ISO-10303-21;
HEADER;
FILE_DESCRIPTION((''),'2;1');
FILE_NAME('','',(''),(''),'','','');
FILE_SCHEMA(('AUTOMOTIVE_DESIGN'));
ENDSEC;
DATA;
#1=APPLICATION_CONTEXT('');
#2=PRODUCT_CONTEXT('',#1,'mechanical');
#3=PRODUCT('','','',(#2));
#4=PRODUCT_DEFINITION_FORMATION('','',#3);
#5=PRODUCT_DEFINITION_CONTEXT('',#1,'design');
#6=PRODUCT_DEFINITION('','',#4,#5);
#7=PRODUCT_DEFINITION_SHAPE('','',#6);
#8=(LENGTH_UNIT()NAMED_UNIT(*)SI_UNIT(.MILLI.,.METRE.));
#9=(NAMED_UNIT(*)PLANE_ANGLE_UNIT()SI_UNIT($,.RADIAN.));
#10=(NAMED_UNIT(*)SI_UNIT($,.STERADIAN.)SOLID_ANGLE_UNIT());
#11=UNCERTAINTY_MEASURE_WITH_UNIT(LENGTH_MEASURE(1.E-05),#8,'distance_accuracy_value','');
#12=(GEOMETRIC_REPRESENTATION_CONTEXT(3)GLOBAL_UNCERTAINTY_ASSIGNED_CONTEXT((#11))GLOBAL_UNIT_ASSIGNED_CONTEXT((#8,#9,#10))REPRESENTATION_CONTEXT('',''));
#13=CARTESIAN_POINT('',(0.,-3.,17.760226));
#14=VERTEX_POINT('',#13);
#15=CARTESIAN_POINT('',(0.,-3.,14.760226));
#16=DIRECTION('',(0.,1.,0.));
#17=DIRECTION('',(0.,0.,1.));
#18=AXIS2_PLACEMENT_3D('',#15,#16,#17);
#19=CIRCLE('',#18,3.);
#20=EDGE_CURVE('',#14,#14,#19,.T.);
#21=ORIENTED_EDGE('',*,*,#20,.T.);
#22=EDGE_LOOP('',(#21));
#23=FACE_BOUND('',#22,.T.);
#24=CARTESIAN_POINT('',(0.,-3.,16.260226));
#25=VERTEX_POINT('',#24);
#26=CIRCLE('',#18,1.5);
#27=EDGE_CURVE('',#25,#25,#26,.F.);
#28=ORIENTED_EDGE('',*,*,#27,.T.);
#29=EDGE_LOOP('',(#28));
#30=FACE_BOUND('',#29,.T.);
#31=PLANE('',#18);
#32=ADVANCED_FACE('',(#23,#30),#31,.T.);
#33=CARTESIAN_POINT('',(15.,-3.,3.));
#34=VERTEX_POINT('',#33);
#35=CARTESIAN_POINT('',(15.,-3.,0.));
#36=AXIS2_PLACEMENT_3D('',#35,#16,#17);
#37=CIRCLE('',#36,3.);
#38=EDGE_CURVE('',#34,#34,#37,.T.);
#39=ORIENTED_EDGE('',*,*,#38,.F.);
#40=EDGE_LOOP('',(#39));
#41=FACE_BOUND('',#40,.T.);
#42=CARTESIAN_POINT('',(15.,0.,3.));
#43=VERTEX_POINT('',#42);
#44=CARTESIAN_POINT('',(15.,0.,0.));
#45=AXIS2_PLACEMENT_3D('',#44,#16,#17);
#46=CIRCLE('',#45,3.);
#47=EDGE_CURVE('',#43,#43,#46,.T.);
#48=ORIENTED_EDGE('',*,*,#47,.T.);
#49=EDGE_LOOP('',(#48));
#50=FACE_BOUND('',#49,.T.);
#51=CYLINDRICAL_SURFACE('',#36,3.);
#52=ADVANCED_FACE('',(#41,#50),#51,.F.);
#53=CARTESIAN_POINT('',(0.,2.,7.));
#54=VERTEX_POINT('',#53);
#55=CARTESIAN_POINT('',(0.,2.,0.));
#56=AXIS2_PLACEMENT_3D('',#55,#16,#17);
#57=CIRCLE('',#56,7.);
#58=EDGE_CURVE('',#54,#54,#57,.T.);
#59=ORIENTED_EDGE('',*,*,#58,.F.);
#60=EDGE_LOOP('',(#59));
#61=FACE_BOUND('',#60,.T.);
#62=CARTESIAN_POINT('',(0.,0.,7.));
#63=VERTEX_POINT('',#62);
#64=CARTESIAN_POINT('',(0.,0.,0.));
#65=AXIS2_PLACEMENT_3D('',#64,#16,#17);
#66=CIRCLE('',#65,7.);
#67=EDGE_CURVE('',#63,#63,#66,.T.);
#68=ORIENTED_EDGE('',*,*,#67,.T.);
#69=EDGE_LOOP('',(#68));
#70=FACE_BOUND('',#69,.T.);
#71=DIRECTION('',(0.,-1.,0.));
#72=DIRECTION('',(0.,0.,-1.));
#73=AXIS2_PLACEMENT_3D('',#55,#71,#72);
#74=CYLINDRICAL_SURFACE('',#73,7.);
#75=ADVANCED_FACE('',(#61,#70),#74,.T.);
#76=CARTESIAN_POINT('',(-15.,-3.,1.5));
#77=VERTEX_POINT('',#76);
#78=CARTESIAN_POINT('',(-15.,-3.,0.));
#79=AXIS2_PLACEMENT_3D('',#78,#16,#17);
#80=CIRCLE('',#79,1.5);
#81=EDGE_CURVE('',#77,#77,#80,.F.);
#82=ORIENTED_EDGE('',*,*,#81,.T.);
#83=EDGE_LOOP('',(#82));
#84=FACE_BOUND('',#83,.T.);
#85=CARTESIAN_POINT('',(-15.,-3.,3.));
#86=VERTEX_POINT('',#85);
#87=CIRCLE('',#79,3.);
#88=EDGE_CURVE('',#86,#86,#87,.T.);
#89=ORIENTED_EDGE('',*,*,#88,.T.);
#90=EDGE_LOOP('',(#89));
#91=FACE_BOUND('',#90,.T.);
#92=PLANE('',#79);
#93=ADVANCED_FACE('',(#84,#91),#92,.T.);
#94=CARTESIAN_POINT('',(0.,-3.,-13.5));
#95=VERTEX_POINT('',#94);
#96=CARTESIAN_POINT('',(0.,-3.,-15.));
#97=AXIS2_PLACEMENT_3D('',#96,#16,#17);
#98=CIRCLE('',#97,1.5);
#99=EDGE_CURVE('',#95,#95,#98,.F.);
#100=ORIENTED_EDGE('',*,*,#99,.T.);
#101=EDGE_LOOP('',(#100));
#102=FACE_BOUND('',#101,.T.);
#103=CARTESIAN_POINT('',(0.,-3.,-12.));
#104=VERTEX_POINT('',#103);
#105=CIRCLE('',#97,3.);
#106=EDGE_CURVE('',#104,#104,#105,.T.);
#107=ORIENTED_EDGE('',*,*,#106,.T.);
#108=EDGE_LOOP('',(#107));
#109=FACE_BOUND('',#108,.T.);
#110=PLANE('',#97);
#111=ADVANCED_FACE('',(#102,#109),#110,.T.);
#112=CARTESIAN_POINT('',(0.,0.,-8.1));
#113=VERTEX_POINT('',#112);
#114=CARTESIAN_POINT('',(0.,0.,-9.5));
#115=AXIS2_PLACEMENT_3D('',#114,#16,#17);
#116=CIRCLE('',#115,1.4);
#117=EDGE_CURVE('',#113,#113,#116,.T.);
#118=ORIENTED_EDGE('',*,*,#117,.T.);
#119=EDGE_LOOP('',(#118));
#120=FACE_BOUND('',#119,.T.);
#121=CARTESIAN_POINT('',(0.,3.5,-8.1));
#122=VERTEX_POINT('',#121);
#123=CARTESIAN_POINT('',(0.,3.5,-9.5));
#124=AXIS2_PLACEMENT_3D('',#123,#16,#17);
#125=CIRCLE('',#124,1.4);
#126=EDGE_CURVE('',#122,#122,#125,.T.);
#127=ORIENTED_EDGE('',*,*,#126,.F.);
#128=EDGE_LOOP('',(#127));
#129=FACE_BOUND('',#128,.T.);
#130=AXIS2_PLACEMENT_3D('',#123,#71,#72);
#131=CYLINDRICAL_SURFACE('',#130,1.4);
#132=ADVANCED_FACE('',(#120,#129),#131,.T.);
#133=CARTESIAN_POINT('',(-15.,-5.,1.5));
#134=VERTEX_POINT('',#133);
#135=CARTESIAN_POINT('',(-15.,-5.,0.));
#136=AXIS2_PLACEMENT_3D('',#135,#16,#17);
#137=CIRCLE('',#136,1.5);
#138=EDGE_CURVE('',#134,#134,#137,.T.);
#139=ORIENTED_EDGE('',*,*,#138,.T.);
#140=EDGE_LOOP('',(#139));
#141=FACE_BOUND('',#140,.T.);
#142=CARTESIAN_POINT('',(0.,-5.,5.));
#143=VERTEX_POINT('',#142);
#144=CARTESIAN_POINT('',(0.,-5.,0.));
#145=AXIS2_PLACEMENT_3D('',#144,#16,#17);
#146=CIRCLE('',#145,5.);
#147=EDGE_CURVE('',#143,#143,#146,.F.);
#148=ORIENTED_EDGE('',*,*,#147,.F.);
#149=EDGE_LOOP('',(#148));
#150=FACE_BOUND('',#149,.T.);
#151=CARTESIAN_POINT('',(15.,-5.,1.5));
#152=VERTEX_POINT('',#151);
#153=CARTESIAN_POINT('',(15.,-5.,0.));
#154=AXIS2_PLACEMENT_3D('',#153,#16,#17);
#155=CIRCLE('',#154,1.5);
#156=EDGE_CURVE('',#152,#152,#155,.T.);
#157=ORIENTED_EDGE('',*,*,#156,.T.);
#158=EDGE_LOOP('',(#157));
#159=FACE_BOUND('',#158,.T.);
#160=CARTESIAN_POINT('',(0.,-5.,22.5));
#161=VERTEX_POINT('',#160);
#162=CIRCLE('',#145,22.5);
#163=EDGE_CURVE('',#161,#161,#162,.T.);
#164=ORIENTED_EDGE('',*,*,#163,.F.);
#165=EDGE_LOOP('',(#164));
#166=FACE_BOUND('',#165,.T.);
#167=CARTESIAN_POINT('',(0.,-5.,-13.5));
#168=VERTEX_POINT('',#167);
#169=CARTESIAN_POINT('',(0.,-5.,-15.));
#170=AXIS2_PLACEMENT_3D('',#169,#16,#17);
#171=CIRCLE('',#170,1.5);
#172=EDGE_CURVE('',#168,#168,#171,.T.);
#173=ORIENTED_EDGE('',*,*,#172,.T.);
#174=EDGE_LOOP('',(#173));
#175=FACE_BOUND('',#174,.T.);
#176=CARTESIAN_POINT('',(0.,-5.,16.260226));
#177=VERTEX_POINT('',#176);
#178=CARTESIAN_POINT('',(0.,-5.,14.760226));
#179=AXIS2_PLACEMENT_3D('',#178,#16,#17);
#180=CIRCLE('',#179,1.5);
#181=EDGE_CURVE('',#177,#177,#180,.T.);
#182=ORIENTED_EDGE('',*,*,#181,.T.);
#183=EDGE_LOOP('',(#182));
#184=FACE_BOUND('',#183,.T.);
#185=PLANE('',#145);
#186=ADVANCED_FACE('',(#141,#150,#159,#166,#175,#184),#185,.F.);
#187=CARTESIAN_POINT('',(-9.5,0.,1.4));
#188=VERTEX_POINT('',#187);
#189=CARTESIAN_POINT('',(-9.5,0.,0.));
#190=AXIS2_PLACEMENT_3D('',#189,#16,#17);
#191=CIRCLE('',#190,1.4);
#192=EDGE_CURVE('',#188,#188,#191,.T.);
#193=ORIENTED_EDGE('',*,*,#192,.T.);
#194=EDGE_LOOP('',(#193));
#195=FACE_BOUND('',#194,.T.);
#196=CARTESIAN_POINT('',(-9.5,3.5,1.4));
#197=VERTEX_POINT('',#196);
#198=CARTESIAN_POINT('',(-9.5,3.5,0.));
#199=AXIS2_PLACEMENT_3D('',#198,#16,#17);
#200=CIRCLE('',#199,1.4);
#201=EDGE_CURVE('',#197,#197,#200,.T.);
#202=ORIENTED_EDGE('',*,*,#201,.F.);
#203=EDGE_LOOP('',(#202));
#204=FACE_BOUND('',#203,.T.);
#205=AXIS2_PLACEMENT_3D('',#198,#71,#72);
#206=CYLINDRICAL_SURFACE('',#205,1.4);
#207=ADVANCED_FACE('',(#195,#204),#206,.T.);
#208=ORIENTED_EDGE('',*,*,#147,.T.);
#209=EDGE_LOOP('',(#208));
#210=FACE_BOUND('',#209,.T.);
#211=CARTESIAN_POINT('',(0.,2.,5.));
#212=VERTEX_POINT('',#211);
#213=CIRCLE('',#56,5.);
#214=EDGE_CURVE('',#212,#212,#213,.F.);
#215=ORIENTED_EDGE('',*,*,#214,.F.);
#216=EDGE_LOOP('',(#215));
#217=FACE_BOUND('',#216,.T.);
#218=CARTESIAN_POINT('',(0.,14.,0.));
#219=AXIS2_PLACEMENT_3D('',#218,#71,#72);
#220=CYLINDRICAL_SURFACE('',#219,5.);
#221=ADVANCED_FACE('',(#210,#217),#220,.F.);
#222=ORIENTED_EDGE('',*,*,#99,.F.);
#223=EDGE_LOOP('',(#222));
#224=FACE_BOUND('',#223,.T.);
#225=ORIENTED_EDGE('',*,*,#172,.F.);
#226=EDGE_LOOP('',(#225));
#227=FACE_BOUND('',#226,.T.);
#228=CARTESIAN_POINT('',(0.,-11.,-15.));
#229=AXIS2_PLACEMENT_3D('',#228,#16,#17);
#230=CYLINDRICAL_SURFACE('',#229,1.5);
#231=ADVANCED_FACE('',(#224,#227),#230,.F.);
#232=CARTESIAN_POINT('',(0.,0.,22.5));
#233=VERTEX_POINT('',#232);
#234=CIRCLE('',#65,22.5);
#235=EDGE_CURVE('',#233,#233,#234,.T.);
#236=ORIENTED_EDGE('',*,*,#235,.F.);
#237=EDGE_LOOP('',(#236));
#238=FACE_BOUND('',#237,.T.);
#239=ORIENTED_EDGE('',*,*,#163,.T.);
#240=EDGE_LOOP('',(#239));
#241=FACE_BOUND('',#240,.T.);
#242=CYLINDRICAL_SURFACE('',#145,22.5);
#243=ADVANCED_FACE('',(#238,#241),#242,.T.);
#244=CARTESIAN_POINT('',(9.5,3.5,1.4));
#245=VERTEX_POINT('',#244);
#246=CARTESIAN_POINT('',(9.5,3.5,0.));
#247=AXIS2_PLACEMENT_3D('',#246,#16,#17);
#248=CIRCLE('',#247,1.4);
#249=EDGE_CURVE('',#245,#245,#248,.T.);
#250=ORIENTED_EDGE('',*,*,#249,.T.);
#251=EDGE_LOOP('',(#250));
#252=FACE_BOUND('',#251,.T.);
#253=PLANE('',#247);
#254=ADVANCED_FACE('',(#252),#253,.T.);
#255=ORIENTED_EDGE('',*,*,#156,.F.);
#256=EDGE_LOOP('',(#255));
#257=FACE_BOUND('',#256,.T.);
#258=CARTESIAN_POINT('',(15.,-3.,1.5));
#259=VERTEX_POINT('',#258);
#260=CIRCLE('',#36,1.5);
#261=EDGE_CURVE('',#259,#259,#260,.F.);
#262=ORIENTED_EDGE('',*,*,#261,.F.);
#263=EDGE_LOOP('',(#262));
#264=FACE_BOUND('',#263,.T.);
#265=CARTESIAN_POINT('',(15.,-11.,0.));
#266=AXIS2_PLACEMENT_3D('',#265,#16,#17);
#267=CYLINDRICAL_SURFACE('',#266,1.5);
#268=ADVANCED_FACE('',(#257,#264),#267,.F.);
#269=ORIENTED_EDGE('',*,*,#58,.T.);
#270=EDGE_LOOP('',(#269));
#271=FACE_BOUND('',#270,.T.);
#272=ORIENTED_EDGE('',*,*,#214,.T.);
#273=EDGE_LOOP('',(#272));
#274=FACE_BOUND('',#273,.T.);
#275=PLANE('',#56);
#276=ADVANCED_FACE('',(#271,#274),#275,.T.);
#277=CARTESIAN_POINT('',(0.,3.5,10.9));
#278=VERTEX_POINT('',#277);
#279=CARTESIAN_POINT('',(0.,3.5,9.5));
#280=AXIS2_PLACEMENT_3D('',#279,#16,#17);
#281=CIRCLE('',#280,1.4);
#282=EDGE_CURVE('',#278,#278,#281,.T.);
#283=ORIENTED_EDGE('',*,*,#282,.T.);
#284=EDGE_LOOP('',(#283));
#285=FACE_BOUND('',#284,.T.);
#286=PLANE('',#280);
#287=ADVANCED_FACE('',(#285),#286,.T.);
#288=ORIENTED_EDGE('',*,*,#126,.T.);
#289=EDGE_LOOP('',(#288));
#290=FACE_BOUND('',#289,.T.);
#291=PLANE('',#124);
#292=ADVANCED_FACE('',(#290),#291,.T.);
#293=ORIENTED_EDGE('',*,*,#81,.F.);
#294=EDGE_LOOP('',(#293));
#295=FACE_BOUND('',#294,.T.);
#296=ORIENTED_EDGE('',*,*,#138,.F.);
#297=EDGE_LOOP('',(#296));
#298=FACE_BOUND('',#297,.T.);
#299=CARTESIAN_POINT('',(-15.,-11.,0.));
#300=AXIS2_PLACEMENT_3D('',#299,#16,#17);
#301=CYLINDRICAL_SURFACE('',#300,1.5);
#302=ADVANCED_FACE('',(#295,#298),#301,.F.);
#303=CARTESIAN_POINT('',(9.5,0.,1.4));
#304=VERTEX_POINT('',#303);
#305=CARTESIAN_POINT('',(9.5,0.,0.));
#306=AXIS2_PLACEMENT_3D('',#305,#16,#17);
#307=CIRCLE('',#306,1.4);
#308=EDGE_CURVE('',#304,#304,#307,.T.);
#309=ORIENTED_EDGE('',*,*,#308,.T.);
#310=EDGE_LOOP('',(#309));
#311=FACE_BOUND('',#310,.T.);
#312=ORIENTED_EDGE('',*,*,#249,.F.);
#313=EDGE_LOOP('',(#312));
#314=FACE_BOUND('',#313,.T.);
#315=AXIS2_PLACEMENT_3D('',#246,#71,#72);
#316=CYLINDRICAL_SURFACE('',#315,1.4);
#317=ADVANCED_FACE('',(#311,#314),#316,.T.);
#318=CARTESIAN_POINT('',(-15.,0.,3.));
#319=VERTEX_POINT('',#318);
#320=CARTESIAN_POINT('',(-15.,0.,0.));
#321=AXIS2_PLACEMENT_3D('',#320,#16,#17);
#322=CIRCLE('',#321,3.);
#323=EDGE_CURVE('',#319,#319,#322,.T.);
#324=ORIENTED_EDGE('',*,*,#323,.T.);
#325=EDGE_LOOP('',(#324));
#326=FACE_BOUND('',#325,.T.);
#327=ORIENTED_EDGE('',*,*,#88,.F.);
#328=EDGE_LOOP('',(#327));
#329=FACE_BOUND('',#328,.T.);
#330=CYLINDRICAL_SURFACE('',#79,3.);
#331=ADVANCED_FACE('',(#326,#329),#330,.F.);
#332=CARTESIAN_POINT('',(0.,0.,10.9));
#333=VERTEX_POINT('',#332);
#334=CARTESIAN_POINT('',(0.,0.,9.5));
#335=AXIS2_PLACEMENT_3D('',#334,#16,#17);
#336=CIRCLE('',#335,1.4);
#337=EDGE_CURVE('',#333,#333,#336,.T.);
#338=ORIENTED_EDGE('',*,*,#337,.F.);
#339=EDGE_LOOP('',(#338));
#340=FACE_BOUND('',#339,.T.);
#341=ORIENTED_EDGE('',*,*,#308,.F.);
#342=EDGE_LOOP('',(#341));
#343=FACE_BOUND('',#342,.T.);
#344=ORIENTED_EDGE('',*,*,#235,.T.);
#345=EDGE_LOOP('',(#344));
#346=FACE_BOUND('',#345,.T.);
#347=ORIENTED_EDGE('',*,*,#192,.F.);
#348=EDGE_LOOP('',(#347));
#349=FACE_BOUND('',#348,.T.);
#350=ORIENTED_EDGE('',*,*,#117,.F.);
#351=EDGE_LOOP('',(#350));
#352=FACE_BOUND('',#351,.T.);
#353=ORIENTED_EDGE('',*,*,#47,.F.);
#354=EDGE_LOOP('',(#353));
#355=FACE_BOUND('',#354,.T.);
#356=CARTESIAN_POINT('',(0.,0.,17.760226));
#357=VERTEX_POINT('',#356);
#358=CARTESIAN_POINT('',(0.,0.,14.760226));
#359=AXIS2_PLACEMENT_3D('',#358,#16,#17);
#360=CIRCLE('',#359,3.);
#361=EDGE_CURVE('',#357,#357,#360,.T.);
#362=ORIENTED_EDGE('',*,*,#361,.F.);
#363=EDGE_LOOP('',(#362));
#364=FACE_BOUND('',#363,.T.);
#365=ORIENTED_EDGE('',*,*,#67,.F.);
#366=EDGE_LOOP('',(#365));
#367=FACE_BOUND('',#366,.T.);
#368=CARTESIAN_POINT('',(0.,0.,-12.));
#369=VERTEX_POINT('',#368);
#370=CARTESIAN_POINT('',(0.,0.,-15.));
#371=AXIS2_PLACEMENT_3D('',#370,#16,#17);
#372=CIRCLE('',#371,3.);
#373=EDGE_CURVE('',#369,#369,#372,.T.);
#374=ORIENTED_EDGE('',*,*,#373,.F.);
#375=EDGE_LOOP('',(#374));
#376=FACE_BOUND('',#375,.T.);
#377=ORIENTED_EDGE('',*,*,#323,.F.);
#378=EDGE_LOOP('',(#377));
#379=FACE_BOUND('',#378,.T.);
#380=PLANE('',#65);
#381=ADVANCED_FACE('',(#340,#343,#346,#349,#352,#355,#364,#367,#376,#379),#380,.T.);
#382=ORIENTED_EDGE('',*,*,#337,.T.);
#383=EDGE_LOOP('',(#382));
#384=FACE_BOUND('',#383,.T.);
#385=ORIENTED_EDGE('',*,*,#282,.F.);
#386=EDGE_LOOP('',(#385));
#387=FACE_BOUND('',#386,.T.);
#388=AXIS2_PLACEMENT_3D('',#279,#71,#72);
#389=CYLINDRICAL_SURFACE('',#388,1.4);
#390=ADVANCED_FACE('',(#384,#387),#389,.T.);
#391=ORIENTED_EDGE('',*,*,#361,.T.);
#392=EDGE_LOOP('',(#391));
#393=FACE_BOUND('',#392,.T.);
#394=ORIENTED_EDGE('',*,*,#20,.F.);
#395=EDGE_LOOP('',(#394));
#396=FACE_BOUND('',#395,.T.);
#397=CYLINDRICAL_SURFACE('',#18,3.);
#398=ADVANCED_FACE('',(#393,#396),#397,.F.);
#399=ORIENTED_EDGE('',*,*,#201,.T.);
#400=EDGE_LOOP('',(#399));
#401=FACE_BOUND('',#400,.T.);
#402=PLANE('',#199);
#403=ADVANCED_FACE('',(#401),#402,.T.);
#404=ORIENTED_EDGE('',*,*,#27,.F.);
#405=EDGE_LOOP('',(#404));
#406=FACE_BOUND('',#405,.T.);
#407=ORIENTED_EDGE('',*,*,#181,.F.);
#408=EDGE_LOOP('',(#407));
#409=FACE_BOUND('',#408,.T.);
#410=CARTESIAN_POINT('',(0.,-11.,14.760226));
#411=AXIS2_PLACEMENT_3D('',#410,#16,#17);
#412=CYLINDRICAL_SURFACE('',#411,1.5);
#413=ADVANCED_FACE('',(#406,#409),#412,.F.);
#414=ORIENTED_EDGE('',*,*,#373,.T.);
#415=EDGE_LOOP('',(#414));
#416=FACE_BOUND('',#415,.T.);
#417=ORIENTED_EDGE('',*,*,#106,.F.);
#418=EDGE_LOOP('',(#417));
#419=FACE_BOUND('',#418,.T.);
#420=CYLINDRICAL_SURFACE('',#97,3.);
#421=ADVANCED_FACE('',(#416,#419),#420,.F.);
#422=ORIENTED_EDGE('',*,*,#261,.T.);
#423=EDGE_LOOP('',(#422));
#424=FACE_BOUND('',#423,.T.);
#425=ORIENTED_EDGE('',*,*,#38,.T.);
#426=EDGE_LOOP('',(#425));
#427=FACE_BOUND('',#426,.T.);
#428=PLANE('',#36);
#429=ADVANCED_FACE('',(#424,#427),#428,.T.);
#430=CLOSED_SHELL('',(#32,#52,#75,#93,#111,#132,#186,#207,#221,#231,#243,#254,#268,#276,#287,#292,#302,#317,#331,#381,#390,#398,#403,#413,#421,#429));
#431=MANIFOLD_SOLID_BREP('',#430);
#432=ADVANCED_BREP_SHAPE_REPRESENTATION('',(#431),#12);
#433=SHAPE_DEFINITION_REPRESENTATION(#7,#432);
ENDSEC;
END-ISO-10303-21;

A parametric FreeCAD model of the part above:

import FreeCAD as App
import Part
import Sketcher

V = App.Vector
Q = App.Units.Quantity

doc = App.newDocument("Part")
body = doc.addObject("PartDesign::Body", "Body")

sketch1 = body.newObject("Sketcher::SketchObject", "Sketch")
sketch1.AttachmentSupport = (doc.getObject("XZ_Plane"), [""])
sketch1.MapMode = "FlatFace"
sketch1.addGeometry(Part.Circle(V(0, 0, 0), V(0, 0, 1), 22), False)
sketch1.addConstraint([
    Sketcher.Constraint("Coincident", 0, 3, -1, 1),
    Sketcher.Constraint("Diameter", 0, Q("45 mm")),
])
pad1 = body.newObject("PartDesign::Pad", "Pad")
pad1.Profile = sketch1
pad1.Length = 5

sketch2 = body.newObject("Sketcher::SketchObject", "Sketch001")
sketch2.AttachmentSupport = (doc.getObject("XZ_Plane"), [""])
sketch2.MapMode = "FlatFace"
sketch2.addGeometry([
    Part.Circle(V(0, -15, 0), V(0, 0, 1), 1.5),
    Part.Circle(V(15, 0, 0), V(0, 0, 1), 1.5),
    Part.Circle(V(0, 14.8, 0), V(0, 0, 1), 1.5),
    Part.Circle(V(-15, 0, 0), V(0, 0, 1), 1.5),
], False)
sketch2.addConstraint([
    Sketcher.Constraint("Equal", 0, 1),
    Sketcher.Constraint("Equal", 1, 2),
    Sketcher.Constraint("Equal", 2, 3),
    Sketcher.Constraint("Symmetric", 1, 3, 3, 3, -1, 1),
    Sketcher.Constraint("PointOnObject", 0, 3, -2),
    Sketcher.Constraint("PointOnObject", 1, 3, -1),
    Sketcher.Constraint("PointOnObject", 2, 3, -2),
    Sketcher.Constraint("Diameter", 0, Q("3 mm")),
    Sketcher.Constraint("DistanceY", 0, 3, -1, 1, Q("15 mm")),
    Sketcher.Constraint("DistanceX", -1, 1, 1, 3, Q("15 mm")),
    Sketcher.Constraint("DistanceY", -1, 1, 2, 3, Q("14.760226 mm")),
])
pocket1 = body.newObject("PartDesign::Pocket", "Pocket")
pocket1.Profile = sketch2
pocket1.Length = 11
pocket1.Reversed = True

sketch3 = body.newObject("Sketcher::SketchObject", "Sketch002")
sketch3.AttachmentSupport = (doc.getObject("XZ_Plane"), [""])
sketch3.MapMode = "FlatFace"
sketch3.addGeometry([
    Part.Circle(V(0, -15, 0), V(0, 0, 1), 3),
    Part.Circle(V(15, 0, 0), V(0, 0, 1), 3),
    Part.Circle(V(0, 14.8, 0), V(0, 0, 1), 3),
    Part.Circle(V(-15, 0, 0), V(0, 0, 1), 3),
], False)
sketch3.addConstraint([
    Sketcher.Constraint("Equal", 0, 1),
    Sketcher.Constraint("Equal", 1, 2),
    Sketcher.Constraint("Equal", 2, 3),
    Sketcher.Constraint("Symmetric", 1, 3, 3, 3, -1, 1),
    Sketcher.Constraint("PointOnObject", 0, 3, -2),
    Sketcher.Constraint("PointOnObject", 1, 3, -1),
    Sketcher.Constraint("PointOnObject", 2, 3, -2),
    Sketcher.Constraint("Diameter", 0, Q("6 mm")),
    Sketcher.Constraint("DistanceY", 0, 3, -1, 1, Q("15 mm")),
    Sketcher.Constraint("DistanceX", -1, 1, 1, 3, Q("15 mm")),
    Sketcher.Constraint("DistanceY", -1, 1, 2, 3, Q("14.760226 mm")),
])
pocket2 = body.newObject("PartDesign::Pocket", "Pocket001")
pocket2.Profile = sketch3
pocket2.Length = 3
pocket2.Reversed = True

sketch4 = body.newObject("Sketcher::SketchObject", "Sketch003")
sketch4.AttachmentSupport = (doc.getObject("XZ_Plane"), [""])
sketch4.MapMode = "FlatFace"
sketch4.addGeometry([
    Part.Circle(V(0, -9.5, 0), V(0, 0, 1), 1.4),
    Part.Circle(V(9.5, 0, 0), V(0, 0, 1), 1.4),
    Part.Circle(V(0, 9.5, 0), V(0, 0, 1), 1.4),
    Part.Circle(V(-9.5, 0, 0), V(0, 0, 1), 1.4),
], False)
sketch4.addConstraint([
    Sketcher.Constraint("Equal", 0, 1),
    Sketcher.Constraint("Equal", 1, 2),
    Sketcher.Constraint("Equal", 2, 3),
    Sketcher.Constraint("Symmetric", 0, 3, 2, 3, -1, 1),
    Sketcher.Constraint("Symmetric", 1, 3, 3, 3, -1, 1),
    Sketcher.Constraint("PointOnObject", 0, 3, -2),
    Sketcher.Constraint("PointOnObject", 1, 3, -1),
    Sketcher.Constraint("Diameter", 0, Q("2.8 mm")),
    Sketcher.Constraint("DistanceY", 0, 3, 2, 3, Q("19 mm")),
    Sketcher.Constraint("DistanceX", 3, 3, 1, 3, Q("19 mm")),
])
pad2 = body.newObject("PartDesign::Pad", "Pad001")
pad2.Profile = sketch4
pad2.Length = 3.5
pad2.Reversed = True

sketch5 = body.newObject("Sketcher::SketchObject", "Sketch004")
sketch5.AttachmentSupport = (doc.getObject("XZ_Plane"), [""])
sketch5.MapMode = "FlatFace"
sketch5.addGeometry(Part.Circle(V(0, 0, 0), V(0, 0, 1), 7), False)
sketch5.addConstraint([
    Sketcher.Constraint("Coincident", 0, 3, -1, 1),
    Sketcher.Constraint("Diameter", 0, Q("14 mm")),
])
pad3 = body.newObject("PartDesign::Pad", "Pad002")
pad3.Profile = sketch5
pad3.Length = 2
pad3.Reversed = True

sketch6 = body.newObject("Sketcher::SketchObject", "Sketch005")
sketch6.AttachmentSupport = (doc.getObject("XZ_Plane"), [""])
sketch6.MapMode = "FlatFace"
sketch6.addGeometry(Part.Circle(V(0, 0, 0), V(0, 0, 1), 5), False)
sketch6.addConstraint([
    Sketcher.Constraint("Coincident", 0, 3, -1, 1),
    Sketcher.Constraint("Diameter", 0, Q("10 mm")),
])
pocket3 = body.newObject("PartDesign::Pocket", "Pocket002")
pocket3.Profile = sketch6
pocket3.Type = "ThroughAll"
pocket3.Midplane = True

doc.recompute()
